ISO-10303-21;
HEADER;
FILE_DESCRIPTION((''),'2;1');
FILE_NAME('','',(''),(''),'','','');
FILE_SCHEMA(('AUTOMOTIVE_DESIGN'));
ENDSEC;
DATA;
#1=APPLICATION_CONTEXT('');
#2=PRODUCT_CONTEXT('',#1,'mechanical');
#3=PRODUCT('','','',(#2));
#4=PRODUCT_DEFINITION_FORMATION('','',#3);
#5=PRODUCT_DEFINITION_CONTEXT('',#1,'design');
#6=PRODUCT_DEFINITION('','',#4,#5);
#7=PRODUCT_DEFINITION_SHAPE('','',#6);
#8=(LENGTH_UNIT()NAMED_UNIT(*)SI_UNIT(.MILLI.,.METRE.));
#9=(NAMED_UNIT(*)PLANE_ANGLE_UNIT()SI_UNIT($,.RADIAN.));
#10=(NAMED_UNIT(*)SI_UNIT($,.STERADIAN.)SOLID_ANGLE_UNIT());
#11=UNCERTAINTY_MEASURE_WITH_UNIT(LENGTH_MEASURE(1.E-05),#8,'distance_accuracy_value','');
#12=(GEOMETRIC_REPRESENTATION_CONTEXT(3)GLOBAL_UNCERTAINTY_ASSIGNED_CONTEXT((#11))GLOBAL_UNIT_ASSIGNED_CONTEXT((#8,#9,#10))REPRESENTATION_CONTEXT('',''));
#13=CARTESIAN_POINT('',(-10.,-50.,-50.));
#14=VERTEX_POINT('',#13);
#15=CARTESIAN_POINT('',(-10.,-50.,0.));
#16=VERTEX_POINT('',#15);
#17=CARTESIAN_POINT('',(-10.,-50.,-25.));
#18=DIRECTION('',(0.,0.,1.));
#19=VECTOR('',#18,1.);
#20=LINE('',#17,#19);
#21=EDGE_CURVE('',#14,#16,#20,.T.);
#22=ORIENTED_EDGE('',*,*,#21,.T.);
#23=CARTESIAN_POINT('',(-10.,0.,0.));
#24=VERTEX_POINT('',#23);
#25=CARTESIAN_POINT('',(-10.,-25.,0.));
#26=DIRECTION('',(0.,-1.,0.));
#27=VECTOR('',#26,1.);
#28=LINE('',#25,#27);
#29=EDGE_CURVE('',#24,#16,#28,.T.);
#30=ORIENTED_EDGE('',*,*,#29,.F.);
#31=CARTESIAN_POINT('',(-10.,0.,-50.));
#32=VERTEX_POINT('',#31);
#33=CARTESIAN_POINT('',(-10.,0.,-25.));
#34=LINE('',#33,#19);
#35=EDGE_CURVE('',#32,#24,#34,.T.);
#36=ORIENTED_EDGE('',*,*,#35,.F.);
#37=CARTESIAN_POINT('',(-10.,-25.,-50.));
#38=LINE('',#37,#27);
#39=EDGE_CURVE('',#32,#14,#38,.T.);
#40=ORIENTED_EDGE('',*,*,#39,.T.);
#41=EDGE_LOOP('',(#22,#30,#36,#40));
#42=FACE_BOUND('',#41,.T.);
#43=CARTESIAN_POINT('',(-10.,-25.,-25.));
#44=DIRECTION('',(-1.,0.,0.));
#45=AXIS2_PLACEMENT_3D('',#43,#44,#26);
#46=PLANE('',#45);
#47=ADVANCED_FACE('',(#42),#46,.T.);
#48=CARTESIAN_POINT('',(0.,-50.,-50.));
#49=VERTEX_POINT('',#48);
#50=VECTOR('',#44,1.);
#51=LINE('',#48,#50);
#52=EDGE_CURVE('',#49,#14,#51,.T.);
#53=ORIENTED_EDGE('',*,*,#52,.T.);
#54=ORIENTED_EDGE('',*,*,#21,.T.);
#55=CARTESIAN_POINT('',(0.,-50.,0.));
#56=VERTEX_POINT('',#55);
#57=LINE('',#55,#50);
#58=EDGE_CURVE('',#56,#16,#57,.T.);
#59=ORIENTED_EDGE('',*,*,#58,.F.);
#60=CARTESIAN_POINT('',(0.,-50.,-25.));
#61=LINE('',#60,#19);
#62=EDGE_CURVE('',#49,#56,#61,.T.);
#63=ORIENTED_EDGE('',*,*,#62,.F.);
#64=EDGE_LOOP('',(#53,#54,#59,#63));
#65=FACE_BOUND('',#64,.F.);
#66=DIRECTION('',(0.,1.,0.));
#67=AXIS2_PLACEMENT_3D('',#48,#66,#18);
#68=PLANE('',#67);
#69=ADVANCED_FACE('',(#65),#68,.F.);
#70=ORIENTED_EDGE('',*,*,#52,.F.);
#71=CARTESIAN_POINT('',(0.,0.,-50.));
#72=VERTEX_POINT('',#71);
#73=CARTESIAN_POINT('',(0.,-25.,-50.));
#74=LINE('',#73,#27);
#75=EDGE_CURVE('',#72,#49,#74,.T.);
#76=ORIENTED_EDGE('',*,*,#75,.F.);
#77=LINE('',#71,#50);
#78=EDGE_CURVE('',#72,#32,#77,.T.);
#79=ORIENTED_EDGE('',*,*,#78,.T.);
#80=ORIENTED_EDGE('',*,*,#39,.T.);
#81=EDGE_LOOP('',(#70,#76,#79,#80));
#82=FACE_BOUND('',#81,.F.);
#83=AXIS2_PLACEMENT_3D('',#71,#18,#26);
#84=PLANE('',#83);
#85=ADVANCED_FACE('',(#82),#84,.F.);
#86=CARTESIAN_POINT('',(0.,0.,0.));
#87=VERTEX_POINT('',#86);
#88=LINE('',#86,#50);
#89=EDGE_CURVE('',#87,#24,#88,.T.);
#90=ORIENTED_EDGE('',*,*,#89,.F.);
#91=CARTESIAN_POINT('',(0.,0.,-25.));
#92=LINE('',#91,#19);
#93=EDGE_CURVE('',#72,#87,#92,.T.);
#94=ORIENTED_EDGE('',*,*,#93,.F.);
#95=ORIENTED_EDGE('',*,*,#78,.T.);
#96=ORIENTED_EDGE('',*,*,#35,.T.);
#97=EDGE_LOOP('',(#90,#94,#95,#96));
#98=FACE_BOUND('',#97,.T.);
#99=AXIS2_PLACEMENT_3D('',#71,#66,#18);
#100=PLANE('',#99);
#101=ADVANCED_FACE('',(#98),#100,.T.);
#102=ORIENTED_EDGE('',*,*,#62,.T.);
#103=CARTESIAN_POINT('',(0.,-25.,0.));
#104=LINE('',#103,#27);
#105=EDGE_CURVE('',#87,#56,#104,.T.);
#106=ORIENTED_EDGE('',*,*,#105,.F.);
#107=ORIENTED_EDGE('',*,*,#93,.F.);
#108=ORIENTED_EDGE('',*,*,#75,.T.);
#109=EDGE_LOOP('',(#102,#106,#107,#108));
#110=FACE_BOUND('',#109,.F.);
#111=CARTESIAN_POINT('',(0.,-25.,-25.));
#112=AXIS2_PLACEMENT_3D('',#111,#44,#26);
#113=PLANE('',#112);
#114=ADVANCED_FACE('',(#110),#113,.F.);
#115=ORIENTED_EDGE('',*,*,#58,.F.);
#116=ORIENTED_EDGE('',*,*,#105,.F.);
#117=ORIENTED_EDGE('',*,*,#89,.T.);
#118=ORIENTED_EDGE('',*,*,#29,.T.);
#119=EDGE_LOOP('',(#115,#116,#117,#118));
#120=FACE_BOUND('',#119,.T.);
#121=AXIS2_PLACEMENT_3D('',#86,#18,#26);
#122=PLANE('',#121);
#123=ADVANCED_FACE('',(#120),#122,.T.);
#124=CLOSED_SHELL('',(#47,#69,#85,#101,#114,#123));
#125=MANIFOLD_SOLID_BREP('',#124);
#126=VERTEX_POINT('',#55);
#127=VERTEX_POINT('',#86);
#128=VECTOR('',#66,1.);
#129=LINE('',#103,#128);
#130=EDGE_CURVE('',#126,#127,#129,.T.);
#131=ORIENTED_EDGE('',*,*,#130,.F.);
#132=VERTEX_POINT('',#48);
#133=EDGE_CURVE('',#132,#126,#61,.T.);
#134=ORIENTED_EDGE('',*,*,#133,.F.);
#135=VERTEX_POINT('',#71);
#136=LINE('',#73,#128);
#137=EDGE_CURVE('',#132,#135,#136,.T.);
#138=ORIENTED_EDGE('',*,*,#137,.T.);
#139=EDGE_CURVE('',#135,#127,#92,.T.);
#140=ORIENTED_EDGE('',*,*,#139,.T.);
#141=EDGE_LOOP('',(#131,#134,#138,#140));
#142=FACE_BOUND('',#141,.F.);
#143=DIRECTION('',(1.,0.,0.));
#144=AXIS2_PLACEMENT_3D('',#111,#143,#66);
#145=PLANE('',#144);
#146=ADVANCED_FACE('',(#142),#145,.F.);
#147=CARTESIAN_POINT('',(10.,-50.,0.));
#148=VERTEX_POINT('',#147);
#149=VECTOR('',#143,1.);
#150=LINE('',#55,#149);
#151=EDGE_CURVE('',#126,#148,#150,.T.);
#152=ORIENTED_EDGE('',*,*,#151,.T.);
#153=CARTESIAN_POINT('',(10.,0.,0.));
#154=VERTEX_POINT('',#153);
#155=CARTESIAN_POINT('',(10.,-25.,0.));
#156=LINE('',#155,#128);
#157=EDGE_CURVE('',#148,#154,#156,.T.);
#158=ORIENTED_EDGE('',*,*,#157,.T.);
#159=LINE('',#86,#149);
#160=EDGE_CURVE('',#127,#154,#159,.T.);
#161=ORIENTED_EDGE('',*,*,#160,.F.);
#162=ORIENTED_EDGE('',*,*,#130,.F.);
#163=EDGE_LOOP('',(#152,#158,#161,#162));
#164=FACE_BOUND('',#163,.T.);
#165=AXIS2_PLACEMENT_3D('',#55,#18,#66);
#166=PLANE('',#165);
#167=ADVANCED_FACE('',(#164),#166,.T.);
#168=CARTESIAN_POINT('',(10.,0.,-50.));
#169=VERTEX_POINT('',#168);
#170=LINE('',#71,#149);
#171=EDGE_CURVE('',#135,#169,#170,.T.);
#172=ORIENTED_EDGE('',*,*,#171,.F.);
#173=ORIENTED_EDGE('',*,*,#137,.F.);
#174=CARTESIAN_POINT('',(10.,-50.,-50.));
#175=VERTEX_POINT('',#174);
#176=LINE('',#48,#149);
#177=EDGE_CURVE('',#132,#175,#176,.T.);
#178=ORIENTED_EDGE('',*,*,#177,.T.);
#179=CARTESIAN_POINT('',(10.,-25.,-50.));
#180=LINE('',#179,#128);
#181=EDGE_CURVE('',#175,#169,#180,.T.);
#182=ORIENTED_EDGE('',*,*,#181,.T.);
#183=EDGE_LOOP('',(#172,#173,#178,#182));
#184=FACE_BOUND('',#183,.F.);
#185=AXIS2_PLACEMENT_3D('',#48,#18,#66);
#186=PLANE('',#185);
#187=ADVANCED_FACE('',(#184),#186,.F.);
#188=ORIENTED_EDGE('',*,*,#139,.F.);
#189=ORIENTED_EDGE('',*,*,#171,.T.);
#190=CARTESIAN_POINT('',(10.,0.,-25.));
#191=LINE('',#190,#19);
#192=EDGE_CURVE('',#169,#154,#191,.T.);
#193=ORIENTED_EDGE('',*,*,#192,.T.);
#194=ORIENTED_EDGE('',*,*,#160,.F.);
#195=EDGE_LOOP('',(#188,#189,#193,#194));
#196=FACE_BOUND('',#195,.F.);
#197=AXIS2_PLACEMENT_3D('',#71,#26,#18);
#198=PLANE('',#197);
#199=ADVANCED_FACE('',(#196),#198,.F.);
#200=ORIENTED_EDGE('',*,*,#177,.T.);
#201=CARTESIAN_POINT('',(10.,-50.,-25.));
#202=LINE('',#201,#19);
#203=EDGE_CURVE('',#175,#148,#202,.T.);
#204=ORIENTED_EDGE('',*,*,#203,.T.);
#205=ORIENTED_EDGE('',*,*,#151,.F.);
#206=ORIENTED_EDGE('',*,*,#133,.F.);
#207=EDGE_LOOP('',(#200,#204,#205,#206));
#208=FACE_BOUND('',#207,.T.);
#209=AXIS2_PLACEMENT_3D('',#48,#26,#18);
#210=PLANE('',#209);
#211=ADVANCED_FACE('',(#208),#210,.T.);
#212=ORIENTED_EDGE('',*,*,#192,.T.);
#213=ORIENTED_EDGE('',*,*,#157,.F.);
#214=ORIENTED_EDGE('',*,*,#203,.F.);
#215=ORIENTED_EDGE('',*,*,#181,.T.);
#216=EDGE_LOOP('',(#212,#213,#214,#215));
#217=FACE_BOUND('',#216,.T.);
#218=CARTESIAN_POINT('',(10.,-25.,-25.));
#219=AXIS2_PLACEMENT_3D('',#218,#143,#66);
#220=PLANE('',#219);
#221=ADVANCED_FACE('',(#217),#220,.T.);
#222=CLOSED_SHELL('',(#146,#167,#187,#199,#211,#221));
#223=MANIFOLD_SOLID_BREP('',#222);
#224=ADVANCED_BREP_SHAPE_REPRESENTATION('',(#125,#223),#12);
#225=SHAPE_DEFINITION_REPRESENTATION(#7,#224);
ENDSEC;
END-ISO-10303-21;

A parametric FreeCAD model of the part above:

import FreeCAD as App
import Part
import Sketcher
Q = App.Units.Quantity

doc = App.newDocument("Part")
params = doc.addObject("Spreadsheet::Sheet", "Params")
for row, (alias, value) in enumerate([
    ("sketch1_width", "50 mm"),
    ("pad1_length", "10 mm"),
    ("sketch2_width", "50 mm"),
    ("pad2_length", "10 mm"),
], start=1):
    params.set(f"A{row}", alias)
    params.set(f"B{row}", "=" + value)
    params.setAlias(f"B{row}", alias)

body = doc.addObject("PartDesign::Body", "Body")

# Sketch on YZ plane
sketch1 = body.newObject("Sketcher::SketchObject", "Sketch")
sketch1.AttachmentSupport = (doc.getObject("YZ_Plane"), [""])
sketch1.MapMode = "FlatFace"
sketch1.addGeometry(Part.LineSegment(App.Vector(-50, 0, 0), App.Vector(-50, -50, 0)), False)
sketch1.addGeometry(Part.LineSegment(App.Vector(-50, -50, 0), App.Vector(0, -50, 0)), False)
sketch1.addGeometry(Part.LineSegment(App.Vector(0, -50, 0), App.Vector(0, 0, 0)), False)
sketch1.addGeometry(Part.LineSegment(App.Vector(0, 0, 0), App.Vector(-50, 0, 0)), False)
sketch1.addConstraint(Sketcher.Constraint("Coincident", 0, 2, 1, 1))
sketch1.addConstraint(Sketcher.Constraint("Coincident", 1, 2, 2, 1))
sketch1.addConstraint(Sketcher.Constraint("Coincident", 2, 2, 3, 1))
sketch1.addConstraint(Sketcher.Constraint("Coincident", 3, 2, 0, 1))
sketch1.addConstraint(Sketcher.Constraint("Vertical", 0))
sketch1.addConstraint(Sketcher.Constraint("Horizontal", 1))
sketch1.addConstraint(Sketcher.Constraint("Vertical", 2))
sketch1.addConstraint(Sketcher.Constraint("Horizontal", 3))
sketch1.addConstraint(Sketcher.Constraint("Coincident", 2, 2, -1, 1))
sketch1.addConstraint(Sketcher.Constraint("Equal", 3, 0))
sketch1.addConstraint(Sketcher.Constraint("DistanceX", 1, 1, 1, 2, Q("50 mm")))
sketch1.setExpression("Constraints[10]", "Params.sketch1_width")
pad1 = body.newObject("PartDesign::Pad", "Pad")
pad1.Profile = sketch1
pad1.setExpression("Length", "Params.pad1_length")
body2 = doc.addObject("PartDesign::Body", "Body001")

# Sketch on YZ plane
sketch2 = body2.newObject("Sketcher::SketchObject", "Sketch001")
sketch2.AttachmentSupport = (doc.getObject("YZ_Plane001"), [""])
sketch2.MapMode = "FlatFace"
sketch2.addGeometry(Part.LineSegment(App.Vector(0, 0, 0), App.Vector(0, -50, 0)), False)
sketch2.addGeometry(Part.LineSegment(App.Vector(0, -50, 0), App.Vector(-50, -50, 0)), False)
sketch2.addGeometry(Part.LineSegment(App.Vector(-50, -50, 0), App.Vector(-50, 0, 0)), False)
sketch2.addGeometry(Part.LineSegment(App.Vector(-50, 0, 0), App.Vector(0, 0, 0)), False)
sketch2.addConstraint(Sketcher.Constraint("Coincident", 0, 2, 1, 1))
sketch2.addConstraint(Sketcher.Constraint("Coincident", 1, 2, 2, 1))
sketch2.addConstraint(Sketcher.Constraint("Coincident", 2, 2, 3, 1))
sketch2.addConstraint(Sketcher.Constraint("Coincident", 3, 2, 0, 1))
sketch2.addConstraint(Sketcher.Constraint("Vertical", 0))
sketch2.addConstraint(Sketcher.Constraint("Horizontal", 1))
sketch2.addConstraint(Sketcher.Constraint("Vertical", 2))
sketch2.addConstraint(Sketcher.Constraint("Horizontal", 3))
sketch2.addConstraint(Sketcher.Constraint("Coincident", 3, 2, -1, 1))
sketch2.addConstraint(Sketcher.Constraint("Equal", 3, 0))
sketch2.addConstraint(Sketcher.Constraint("DistanceX", 1, 2, 1, 1, Q("50 mm")))
sketch2.setExpression("Constraints[10]", "Params.sketch2_width")
pad2 = body2.newObject("PartDesign::Pad", "Pad001")
pad2.Profile = sketch2
pad2.setExpression("Length", "Params.pad2_length")
pad2.Reversed = True

doc.recompute()
